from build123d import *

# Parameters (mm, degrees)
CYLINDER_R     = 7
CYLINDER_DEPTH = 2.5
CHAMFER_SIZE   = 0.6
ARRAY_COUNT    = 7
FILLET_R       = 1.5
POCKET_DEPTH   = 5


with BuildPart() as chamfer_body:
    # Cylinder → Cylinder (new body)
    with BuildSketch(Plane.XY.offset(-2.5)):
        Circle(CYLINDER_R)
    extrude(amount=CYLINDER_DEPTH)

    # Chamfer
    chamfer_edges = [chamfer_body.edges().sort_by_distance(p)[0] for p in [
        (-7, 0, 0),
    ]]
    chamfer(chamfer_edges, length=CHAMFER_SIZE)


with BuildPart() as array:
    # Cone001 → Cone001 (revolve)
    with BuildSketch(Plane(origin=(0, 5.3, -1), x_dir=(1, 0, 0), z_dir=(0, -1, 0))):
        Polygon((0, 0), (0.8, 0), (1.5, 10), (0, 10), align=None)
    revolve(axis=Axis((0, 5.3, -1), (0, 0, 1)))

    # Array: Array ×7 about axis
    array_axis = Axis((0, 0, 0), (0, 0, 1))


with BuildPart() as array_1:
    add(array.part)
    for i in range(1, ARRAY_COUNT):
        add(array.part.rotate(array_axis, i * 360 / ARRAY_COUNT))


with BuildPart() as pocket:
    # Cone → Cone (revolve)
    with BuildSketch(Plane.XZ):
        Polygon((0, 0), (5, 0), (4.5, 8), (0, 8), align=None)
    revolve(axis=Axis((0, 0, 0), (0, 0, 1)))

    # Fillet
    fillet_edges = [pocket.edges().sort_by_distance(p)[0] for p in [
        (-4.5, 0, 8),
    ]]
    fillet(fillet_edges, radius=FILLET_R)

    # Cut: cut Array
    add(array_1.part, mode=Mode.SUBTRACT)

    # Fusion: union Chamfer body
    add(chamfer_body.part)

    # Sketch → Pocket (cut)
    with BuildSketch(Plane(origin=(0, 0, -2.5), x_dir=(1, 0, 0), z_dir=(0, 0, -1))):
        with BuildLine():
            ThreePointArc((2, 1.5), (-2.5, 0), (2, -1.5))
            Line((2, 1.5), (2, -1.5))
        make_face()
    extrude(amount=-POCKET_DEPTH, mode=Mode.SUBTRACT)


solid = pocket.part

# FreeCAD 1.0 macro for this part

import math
import FreeCAD as App
import Part
import Sketcher


def edges_at(feature, points):
    """Names of the edges that pass closest to the given points."""
    edges = feature.Shape.Edges
    near = lambda p: min(range(len(edges)), key=lambda i: edges[i].distToShape(Part.Vertex(*p))[0])
    return sorted({f"Edge{near(p) + 1}" for p in points})

doc = App.newDocument("Part")
body = doc.addObject("PartDesign::Body", "Body")

# Sketch on XY plane
sketch1 = doc.addObject("Sketcher::SketchObject", "Sketch")
body.addObject(sketch1)
sketch1.AttachmentSupport = (doc.XY_Plane, [""])
sketch1.MapMode = "FlatFace"
sketch1.AttachmentOffset = App.Placement(App.Vector(0, 0, -2.5), App.Rotation())
sketch1.addGeometry(Part.Circle(App.Vector(0, 0, 0), App.Vector(0, 0, 1), 7), False)
sketch1.addConstraint(Sketcher.Constraint("Coincident", 0, 3, -1, 1))
sketch1.addConstraint(Sketcher.Constraint("Diameter", 0, 14.0))
pad1 = doc.addObject("PartDesign::Pad", "Pad")
body.addObject(pad1)
pad1.Profile = sketch1
pad1.Length = 2.5
doc.recompute()

chamfer = doc.addObject("PartDesign::Chamfer", "Chamfer")
body.addObject(chamfer)
chamfer.Base = (pad1, edges_at(pad1, [(-7, 0, 0)]))
chamfer.Size = 0.6
body2 = doc.addObject("PartDesign::Body", "Body001")

# Sketch on XZ plane
sketch2 = doc.addObject("Sketcher::SketchObject", "Sketch001")
body2.addObject(sketch2)
sketch2.AttachmentSupport = (doc.getObject("XZ_Plane001"), [""])
sketch2.MapMode = "FlatFace"
sketch2.AttachmentOffset = App.Placement(App.Vector(0, 0, -5.3), App.Rotation())
sketch2.addGeometry(Part.LineSegment(App.Vector(0, -1, 0), App.Vector(0.8, -1, 0)), False)
sketch2.addGeometry(Part.LineSegment(App.Vector(0.8, -1, 0), App.Vector(1.5, 9, 0)), False)
sketch2.addGeometry(Part.LineSegment(App.Vector(1.5, 9, 0), App.Vector(0, 9, 0)), False)
sketch2.addGeometry(Part.LineSegment(App.Vector(0, 9, 0), App.Vector(0, -1, 0)), False)
sketch2.addConstraint(Sketcher.Constraint("Coincident", 0, 2, 1, 1))
sketch2.addConstraint(Sketcher.Constraint("Coincident", 1, 2, 2, 1))
sketch2.addConstraint(Sketcher.Constraint("Coincident", 2, 2, 3, 1))
sketch2.addConstraint(Sketcher.Constraint("Coincident", 3, 2, 0, 1))
sketch2.addConstraint(Sketcher.Constraint("Horizontal", 0))
sketch2.addConstraint(Sketcher.Constraint("Horizontal", 2))
sketch2.addConstraint(Sketcher.Constraint("Vertical", 3))
sketch2.addConstraint(Sketcher.Constraint("PointOnObject", 2, 2, -2))
sketch2.addConstraint(Sketcher.Constraint("DistanceY", 3, 2, 3, 1, 10.0))
sketch2.addConstraint(Sketcher.Constraint("DistanceX", 0, 1, 0, 2, 0.8))
sketch2.addConstraint(Sketcher.Constraint("DistanceX", 2, 2, 2, 1, 1.5))
sketch2.addConstraint(Sketcher.Constraint("DistanceY", 0, 2, -1, 1, 1.0))
revolution = doc.addObject("PartDesign::Revolution", "Revolution")
body2.addObject(revolution)
revolution.Profile = sketch2
revolution.ReferenceAxis = (sketch2, ["V_Axis"])
revolution.Angle = 360
body3 = doc.addObject("PartDesign::Body", "Body002")
body3.AllowCompound = True
doc.recompute()

body3.BaseFeature = body2
doc.recompute()

body4 = doc.addObject("PartDesign::Body", "Body003")
body4.BaseFeature = body2
body4.Placement = App.Placement(App.Vector(0, 0, 0), App.Rotation(App.Vector(0, 0, 1), 51.428571))
boolean = doc.addObject("PartDesign::Boolean", "Boolean")
body3.addObject(boolean)
boolean.Type = "Fuse"
boolean.addObjects([body4])
doc.recompute()

body5 = doc.addObject("PartDesign::Body", "Body004")
body5.BaseFeature = body2
body5.Placement = App.Placement(App.Vector(0, 0, 0), App.Rotation(App.Vector(0, 0, 1), 102.857143))
boolean2 = doc.addObject("PartDesign::Boolean", "Boolean001")
body3.addObject(boolean2)
boolean2.Type = "Fuse"
boolean2.addObjects([body5])
doc.recompute()

body6 = doc.addObject("PartDesign::Body", "Body005")
body6.BaseFeature = body2
body6.Placement = App.Placement(App.Vector(0, 0, 0), App.Rotation(App.Vector(0, 0, 1), 154.285714))
boolean3 = doc.addObject("PartDesign::Boolean", "Boolean002")
body3.addObject(boolean3)
boolean3.Type = "Fuse"
boolean3.addObjects([body6])
doc.recompute()

body7 = doc.addObject("PartDesign::Body", "Body006")
body7.BaseFeature = body2
body7.Placement = App.Placement(App.Vector(0, 0, 0), App.Rotation(App.Vector(0, 0, 1), 205.714286))
boolean4 = doc.addObject("PartDesign::Boolean", "Boolean003")
body3.addObject(boolean4)
boolean4.Type = "Fuse"
boolean4.addObjects([body7])
doc.recompute()

body8 = doc.addObject("PartDesign::Body", "Body007")
body8.BaseFeature = body2
body8.Placement = App.Placement(App.Vector(0, 0, 0), App.Rotation(App.Vector(0, 0, 1), 257.142857))
boolean5 = doc.addObject("PartDesign::Boolean", "Boolean004")
body3.addObject(boolean5)
boolean5.Type = "Fuse"
boolean5.addObjects([body8])
doc.recompute()

body2.Placement = App.Placement(App.Vector(0, 0, 0), App.Rotation(App.Vector(0, 0, 1), 308.571429))
boolean6 = doc.addObject("PartDesign::Boolean", "Boolean005")
body3.addObject(boolean6)
boolean6.Type = "Fuse"
boolean6.addObjects([body2])
body9 = doc.addObject("PartDesign::Body", "Body008")

# Sketch on XZ plane
sketch3 = doc.addObject("Sketcher::SketchObject", "Sketch002")
body9.addObject(sketch3)
sketch3.AttachmentSupport = (doc.getObject("XZ_Plane008"), [""])
sketch3.MapMode = "FlatFace"
sketch3.addGeometry(Part.LineSegment(App.Vector(0, 0, 0), App.Vector(5, 0, 0)), False)
sketch3.addGeometry(Part.LineSegment(App.Vector(5, 0, 0), App.Vector(4.5, 8, 0)), False)
sketch3.addGeometry(Part.LineSegment(App.Vector(4.5, 8, 0), App.Vector(0, 8, 0)), False)
sketch3.addGeometry(Part.LineSegment(App.Vector(0, 8, 0), App.Vector(0, 0, 0)), False)
sketch3.addConstraint(Sketcher.Constraint("Coincident", 0, 2, 1, 1))
sketch3.addConstraint(Sketcher.Constraint("Coincident", 1, 2, 2, 1))
sketch3.addConstraint(Sketcher.Constraint("Coincident", 2, 2, 3, 1))
sketch3.addConstraint(Sketcher.Constraint("Coincident", 3, 2, 0, 1))
sketch3.addConstraint(Sketcher.Constraint("Horizontal", 0))
sketch3.addConstraint(Sketcher.Constraint("Horizontal", 2))
sketch3.addConstraint(Sketcher.Constraint("Vertical", 3))
sketch3.addConstraint(Sketcher.Constraint("Coincident", 3, 2, -1, 1))
sketch3.addConstraint(Sketcher.Constraint("DistanceX", 0, 1, 0, 2, 5.0))
sketch3.addConstraint(Sketcher.Constraint("DistanceY", 3, 2, 3, 1, 8.0))
sketch3.addConstraint(Sketcher.Constraint("DistanceX", 2, 2, 2, 1, 4.5))
revolution2 = doc.addObject("PartDesign::Revolution", "Revolution001")
body9.addObject(revolution2)
revolution2.Profile = sketch3
revolution2.ReferenceAxis = (sketch3, ["V_Axis"])
revolution2.Angle = 360
doc.recompute()

fillet = doc.addObject("PartDesign::Fillet", "Fillet")
body9.addObject(fillet)
fillet.Base = (revolution2, edges_at(revolution2, [(-4.5, 0, 8)]))
fillet.Radius = 1.5
doc.recompute()

boolean7 = doc.addObject("PartDesign::Boolean", "Boolean006")
body9.addObject(boolean7)
boolean7.Type = "Cut"
boolean7.addObjects([body3])
doc.recompute()

boolean8 = doc.addObject("PartDesign::Boolean", "Boolean007")
body9.addObject(boolean8)
boolean8.Type = "Fuse"
boolean8.addObjects([body])

# Sketch on XY plane
sketch4 = doc.addObject("Sketcher::SketchObject", "Sketch003")
body9.addObject(sketch4)
sketch4.AttachmentSupport = (doc.getObject("XY_Plane008"), [""])
sketch4.MapMode = "FlatFace"
sketch4.AttachmentOffset = App.Placement(App.Vector(0, 0, -2.5), App.Rotation())
sketch4.addGeometry(Part.ArcOfCircle(Part.Circle(App.Vector(0, 0, 0), App.Vector(0, 0, 1), 2.5), math.radians(37), math.radians(323)), False)
sketch4.addGeometry(Part.LineSegment(App.Vector(2, 1.5, 0), App.Vector(2, -1.5, 0)), False)
sketch4.addConstraint(Sketcher.Constraint("Coincident", 0, 1, 1, 1))
sketch4.addConstraint(Sketcher.Constraint("Coincident", 1, 2, 0, 2))
sketch4.addConstraint(Sketcher.Constraint("Vertical", 1))
sketch4.addConstraint(Sketcher.Constraint("Coincident", 0, 3, -1, 1))
sketch4.addConstraint(Sketcher.Constraint("Radius", 0, 2.5))
sketch4.addConstraint(Sketcher.Constraint("DistanceY", 1, 2, 1, 1, 3.0))
pocket1 = doc.addObject("PartDesign::Pocket", "Pocket")
body9.addObject(pocket1)
pocket1.Profile = sketch4
pocket1.Length = 5
pocket1.Reversed = True

doc.recompute()
